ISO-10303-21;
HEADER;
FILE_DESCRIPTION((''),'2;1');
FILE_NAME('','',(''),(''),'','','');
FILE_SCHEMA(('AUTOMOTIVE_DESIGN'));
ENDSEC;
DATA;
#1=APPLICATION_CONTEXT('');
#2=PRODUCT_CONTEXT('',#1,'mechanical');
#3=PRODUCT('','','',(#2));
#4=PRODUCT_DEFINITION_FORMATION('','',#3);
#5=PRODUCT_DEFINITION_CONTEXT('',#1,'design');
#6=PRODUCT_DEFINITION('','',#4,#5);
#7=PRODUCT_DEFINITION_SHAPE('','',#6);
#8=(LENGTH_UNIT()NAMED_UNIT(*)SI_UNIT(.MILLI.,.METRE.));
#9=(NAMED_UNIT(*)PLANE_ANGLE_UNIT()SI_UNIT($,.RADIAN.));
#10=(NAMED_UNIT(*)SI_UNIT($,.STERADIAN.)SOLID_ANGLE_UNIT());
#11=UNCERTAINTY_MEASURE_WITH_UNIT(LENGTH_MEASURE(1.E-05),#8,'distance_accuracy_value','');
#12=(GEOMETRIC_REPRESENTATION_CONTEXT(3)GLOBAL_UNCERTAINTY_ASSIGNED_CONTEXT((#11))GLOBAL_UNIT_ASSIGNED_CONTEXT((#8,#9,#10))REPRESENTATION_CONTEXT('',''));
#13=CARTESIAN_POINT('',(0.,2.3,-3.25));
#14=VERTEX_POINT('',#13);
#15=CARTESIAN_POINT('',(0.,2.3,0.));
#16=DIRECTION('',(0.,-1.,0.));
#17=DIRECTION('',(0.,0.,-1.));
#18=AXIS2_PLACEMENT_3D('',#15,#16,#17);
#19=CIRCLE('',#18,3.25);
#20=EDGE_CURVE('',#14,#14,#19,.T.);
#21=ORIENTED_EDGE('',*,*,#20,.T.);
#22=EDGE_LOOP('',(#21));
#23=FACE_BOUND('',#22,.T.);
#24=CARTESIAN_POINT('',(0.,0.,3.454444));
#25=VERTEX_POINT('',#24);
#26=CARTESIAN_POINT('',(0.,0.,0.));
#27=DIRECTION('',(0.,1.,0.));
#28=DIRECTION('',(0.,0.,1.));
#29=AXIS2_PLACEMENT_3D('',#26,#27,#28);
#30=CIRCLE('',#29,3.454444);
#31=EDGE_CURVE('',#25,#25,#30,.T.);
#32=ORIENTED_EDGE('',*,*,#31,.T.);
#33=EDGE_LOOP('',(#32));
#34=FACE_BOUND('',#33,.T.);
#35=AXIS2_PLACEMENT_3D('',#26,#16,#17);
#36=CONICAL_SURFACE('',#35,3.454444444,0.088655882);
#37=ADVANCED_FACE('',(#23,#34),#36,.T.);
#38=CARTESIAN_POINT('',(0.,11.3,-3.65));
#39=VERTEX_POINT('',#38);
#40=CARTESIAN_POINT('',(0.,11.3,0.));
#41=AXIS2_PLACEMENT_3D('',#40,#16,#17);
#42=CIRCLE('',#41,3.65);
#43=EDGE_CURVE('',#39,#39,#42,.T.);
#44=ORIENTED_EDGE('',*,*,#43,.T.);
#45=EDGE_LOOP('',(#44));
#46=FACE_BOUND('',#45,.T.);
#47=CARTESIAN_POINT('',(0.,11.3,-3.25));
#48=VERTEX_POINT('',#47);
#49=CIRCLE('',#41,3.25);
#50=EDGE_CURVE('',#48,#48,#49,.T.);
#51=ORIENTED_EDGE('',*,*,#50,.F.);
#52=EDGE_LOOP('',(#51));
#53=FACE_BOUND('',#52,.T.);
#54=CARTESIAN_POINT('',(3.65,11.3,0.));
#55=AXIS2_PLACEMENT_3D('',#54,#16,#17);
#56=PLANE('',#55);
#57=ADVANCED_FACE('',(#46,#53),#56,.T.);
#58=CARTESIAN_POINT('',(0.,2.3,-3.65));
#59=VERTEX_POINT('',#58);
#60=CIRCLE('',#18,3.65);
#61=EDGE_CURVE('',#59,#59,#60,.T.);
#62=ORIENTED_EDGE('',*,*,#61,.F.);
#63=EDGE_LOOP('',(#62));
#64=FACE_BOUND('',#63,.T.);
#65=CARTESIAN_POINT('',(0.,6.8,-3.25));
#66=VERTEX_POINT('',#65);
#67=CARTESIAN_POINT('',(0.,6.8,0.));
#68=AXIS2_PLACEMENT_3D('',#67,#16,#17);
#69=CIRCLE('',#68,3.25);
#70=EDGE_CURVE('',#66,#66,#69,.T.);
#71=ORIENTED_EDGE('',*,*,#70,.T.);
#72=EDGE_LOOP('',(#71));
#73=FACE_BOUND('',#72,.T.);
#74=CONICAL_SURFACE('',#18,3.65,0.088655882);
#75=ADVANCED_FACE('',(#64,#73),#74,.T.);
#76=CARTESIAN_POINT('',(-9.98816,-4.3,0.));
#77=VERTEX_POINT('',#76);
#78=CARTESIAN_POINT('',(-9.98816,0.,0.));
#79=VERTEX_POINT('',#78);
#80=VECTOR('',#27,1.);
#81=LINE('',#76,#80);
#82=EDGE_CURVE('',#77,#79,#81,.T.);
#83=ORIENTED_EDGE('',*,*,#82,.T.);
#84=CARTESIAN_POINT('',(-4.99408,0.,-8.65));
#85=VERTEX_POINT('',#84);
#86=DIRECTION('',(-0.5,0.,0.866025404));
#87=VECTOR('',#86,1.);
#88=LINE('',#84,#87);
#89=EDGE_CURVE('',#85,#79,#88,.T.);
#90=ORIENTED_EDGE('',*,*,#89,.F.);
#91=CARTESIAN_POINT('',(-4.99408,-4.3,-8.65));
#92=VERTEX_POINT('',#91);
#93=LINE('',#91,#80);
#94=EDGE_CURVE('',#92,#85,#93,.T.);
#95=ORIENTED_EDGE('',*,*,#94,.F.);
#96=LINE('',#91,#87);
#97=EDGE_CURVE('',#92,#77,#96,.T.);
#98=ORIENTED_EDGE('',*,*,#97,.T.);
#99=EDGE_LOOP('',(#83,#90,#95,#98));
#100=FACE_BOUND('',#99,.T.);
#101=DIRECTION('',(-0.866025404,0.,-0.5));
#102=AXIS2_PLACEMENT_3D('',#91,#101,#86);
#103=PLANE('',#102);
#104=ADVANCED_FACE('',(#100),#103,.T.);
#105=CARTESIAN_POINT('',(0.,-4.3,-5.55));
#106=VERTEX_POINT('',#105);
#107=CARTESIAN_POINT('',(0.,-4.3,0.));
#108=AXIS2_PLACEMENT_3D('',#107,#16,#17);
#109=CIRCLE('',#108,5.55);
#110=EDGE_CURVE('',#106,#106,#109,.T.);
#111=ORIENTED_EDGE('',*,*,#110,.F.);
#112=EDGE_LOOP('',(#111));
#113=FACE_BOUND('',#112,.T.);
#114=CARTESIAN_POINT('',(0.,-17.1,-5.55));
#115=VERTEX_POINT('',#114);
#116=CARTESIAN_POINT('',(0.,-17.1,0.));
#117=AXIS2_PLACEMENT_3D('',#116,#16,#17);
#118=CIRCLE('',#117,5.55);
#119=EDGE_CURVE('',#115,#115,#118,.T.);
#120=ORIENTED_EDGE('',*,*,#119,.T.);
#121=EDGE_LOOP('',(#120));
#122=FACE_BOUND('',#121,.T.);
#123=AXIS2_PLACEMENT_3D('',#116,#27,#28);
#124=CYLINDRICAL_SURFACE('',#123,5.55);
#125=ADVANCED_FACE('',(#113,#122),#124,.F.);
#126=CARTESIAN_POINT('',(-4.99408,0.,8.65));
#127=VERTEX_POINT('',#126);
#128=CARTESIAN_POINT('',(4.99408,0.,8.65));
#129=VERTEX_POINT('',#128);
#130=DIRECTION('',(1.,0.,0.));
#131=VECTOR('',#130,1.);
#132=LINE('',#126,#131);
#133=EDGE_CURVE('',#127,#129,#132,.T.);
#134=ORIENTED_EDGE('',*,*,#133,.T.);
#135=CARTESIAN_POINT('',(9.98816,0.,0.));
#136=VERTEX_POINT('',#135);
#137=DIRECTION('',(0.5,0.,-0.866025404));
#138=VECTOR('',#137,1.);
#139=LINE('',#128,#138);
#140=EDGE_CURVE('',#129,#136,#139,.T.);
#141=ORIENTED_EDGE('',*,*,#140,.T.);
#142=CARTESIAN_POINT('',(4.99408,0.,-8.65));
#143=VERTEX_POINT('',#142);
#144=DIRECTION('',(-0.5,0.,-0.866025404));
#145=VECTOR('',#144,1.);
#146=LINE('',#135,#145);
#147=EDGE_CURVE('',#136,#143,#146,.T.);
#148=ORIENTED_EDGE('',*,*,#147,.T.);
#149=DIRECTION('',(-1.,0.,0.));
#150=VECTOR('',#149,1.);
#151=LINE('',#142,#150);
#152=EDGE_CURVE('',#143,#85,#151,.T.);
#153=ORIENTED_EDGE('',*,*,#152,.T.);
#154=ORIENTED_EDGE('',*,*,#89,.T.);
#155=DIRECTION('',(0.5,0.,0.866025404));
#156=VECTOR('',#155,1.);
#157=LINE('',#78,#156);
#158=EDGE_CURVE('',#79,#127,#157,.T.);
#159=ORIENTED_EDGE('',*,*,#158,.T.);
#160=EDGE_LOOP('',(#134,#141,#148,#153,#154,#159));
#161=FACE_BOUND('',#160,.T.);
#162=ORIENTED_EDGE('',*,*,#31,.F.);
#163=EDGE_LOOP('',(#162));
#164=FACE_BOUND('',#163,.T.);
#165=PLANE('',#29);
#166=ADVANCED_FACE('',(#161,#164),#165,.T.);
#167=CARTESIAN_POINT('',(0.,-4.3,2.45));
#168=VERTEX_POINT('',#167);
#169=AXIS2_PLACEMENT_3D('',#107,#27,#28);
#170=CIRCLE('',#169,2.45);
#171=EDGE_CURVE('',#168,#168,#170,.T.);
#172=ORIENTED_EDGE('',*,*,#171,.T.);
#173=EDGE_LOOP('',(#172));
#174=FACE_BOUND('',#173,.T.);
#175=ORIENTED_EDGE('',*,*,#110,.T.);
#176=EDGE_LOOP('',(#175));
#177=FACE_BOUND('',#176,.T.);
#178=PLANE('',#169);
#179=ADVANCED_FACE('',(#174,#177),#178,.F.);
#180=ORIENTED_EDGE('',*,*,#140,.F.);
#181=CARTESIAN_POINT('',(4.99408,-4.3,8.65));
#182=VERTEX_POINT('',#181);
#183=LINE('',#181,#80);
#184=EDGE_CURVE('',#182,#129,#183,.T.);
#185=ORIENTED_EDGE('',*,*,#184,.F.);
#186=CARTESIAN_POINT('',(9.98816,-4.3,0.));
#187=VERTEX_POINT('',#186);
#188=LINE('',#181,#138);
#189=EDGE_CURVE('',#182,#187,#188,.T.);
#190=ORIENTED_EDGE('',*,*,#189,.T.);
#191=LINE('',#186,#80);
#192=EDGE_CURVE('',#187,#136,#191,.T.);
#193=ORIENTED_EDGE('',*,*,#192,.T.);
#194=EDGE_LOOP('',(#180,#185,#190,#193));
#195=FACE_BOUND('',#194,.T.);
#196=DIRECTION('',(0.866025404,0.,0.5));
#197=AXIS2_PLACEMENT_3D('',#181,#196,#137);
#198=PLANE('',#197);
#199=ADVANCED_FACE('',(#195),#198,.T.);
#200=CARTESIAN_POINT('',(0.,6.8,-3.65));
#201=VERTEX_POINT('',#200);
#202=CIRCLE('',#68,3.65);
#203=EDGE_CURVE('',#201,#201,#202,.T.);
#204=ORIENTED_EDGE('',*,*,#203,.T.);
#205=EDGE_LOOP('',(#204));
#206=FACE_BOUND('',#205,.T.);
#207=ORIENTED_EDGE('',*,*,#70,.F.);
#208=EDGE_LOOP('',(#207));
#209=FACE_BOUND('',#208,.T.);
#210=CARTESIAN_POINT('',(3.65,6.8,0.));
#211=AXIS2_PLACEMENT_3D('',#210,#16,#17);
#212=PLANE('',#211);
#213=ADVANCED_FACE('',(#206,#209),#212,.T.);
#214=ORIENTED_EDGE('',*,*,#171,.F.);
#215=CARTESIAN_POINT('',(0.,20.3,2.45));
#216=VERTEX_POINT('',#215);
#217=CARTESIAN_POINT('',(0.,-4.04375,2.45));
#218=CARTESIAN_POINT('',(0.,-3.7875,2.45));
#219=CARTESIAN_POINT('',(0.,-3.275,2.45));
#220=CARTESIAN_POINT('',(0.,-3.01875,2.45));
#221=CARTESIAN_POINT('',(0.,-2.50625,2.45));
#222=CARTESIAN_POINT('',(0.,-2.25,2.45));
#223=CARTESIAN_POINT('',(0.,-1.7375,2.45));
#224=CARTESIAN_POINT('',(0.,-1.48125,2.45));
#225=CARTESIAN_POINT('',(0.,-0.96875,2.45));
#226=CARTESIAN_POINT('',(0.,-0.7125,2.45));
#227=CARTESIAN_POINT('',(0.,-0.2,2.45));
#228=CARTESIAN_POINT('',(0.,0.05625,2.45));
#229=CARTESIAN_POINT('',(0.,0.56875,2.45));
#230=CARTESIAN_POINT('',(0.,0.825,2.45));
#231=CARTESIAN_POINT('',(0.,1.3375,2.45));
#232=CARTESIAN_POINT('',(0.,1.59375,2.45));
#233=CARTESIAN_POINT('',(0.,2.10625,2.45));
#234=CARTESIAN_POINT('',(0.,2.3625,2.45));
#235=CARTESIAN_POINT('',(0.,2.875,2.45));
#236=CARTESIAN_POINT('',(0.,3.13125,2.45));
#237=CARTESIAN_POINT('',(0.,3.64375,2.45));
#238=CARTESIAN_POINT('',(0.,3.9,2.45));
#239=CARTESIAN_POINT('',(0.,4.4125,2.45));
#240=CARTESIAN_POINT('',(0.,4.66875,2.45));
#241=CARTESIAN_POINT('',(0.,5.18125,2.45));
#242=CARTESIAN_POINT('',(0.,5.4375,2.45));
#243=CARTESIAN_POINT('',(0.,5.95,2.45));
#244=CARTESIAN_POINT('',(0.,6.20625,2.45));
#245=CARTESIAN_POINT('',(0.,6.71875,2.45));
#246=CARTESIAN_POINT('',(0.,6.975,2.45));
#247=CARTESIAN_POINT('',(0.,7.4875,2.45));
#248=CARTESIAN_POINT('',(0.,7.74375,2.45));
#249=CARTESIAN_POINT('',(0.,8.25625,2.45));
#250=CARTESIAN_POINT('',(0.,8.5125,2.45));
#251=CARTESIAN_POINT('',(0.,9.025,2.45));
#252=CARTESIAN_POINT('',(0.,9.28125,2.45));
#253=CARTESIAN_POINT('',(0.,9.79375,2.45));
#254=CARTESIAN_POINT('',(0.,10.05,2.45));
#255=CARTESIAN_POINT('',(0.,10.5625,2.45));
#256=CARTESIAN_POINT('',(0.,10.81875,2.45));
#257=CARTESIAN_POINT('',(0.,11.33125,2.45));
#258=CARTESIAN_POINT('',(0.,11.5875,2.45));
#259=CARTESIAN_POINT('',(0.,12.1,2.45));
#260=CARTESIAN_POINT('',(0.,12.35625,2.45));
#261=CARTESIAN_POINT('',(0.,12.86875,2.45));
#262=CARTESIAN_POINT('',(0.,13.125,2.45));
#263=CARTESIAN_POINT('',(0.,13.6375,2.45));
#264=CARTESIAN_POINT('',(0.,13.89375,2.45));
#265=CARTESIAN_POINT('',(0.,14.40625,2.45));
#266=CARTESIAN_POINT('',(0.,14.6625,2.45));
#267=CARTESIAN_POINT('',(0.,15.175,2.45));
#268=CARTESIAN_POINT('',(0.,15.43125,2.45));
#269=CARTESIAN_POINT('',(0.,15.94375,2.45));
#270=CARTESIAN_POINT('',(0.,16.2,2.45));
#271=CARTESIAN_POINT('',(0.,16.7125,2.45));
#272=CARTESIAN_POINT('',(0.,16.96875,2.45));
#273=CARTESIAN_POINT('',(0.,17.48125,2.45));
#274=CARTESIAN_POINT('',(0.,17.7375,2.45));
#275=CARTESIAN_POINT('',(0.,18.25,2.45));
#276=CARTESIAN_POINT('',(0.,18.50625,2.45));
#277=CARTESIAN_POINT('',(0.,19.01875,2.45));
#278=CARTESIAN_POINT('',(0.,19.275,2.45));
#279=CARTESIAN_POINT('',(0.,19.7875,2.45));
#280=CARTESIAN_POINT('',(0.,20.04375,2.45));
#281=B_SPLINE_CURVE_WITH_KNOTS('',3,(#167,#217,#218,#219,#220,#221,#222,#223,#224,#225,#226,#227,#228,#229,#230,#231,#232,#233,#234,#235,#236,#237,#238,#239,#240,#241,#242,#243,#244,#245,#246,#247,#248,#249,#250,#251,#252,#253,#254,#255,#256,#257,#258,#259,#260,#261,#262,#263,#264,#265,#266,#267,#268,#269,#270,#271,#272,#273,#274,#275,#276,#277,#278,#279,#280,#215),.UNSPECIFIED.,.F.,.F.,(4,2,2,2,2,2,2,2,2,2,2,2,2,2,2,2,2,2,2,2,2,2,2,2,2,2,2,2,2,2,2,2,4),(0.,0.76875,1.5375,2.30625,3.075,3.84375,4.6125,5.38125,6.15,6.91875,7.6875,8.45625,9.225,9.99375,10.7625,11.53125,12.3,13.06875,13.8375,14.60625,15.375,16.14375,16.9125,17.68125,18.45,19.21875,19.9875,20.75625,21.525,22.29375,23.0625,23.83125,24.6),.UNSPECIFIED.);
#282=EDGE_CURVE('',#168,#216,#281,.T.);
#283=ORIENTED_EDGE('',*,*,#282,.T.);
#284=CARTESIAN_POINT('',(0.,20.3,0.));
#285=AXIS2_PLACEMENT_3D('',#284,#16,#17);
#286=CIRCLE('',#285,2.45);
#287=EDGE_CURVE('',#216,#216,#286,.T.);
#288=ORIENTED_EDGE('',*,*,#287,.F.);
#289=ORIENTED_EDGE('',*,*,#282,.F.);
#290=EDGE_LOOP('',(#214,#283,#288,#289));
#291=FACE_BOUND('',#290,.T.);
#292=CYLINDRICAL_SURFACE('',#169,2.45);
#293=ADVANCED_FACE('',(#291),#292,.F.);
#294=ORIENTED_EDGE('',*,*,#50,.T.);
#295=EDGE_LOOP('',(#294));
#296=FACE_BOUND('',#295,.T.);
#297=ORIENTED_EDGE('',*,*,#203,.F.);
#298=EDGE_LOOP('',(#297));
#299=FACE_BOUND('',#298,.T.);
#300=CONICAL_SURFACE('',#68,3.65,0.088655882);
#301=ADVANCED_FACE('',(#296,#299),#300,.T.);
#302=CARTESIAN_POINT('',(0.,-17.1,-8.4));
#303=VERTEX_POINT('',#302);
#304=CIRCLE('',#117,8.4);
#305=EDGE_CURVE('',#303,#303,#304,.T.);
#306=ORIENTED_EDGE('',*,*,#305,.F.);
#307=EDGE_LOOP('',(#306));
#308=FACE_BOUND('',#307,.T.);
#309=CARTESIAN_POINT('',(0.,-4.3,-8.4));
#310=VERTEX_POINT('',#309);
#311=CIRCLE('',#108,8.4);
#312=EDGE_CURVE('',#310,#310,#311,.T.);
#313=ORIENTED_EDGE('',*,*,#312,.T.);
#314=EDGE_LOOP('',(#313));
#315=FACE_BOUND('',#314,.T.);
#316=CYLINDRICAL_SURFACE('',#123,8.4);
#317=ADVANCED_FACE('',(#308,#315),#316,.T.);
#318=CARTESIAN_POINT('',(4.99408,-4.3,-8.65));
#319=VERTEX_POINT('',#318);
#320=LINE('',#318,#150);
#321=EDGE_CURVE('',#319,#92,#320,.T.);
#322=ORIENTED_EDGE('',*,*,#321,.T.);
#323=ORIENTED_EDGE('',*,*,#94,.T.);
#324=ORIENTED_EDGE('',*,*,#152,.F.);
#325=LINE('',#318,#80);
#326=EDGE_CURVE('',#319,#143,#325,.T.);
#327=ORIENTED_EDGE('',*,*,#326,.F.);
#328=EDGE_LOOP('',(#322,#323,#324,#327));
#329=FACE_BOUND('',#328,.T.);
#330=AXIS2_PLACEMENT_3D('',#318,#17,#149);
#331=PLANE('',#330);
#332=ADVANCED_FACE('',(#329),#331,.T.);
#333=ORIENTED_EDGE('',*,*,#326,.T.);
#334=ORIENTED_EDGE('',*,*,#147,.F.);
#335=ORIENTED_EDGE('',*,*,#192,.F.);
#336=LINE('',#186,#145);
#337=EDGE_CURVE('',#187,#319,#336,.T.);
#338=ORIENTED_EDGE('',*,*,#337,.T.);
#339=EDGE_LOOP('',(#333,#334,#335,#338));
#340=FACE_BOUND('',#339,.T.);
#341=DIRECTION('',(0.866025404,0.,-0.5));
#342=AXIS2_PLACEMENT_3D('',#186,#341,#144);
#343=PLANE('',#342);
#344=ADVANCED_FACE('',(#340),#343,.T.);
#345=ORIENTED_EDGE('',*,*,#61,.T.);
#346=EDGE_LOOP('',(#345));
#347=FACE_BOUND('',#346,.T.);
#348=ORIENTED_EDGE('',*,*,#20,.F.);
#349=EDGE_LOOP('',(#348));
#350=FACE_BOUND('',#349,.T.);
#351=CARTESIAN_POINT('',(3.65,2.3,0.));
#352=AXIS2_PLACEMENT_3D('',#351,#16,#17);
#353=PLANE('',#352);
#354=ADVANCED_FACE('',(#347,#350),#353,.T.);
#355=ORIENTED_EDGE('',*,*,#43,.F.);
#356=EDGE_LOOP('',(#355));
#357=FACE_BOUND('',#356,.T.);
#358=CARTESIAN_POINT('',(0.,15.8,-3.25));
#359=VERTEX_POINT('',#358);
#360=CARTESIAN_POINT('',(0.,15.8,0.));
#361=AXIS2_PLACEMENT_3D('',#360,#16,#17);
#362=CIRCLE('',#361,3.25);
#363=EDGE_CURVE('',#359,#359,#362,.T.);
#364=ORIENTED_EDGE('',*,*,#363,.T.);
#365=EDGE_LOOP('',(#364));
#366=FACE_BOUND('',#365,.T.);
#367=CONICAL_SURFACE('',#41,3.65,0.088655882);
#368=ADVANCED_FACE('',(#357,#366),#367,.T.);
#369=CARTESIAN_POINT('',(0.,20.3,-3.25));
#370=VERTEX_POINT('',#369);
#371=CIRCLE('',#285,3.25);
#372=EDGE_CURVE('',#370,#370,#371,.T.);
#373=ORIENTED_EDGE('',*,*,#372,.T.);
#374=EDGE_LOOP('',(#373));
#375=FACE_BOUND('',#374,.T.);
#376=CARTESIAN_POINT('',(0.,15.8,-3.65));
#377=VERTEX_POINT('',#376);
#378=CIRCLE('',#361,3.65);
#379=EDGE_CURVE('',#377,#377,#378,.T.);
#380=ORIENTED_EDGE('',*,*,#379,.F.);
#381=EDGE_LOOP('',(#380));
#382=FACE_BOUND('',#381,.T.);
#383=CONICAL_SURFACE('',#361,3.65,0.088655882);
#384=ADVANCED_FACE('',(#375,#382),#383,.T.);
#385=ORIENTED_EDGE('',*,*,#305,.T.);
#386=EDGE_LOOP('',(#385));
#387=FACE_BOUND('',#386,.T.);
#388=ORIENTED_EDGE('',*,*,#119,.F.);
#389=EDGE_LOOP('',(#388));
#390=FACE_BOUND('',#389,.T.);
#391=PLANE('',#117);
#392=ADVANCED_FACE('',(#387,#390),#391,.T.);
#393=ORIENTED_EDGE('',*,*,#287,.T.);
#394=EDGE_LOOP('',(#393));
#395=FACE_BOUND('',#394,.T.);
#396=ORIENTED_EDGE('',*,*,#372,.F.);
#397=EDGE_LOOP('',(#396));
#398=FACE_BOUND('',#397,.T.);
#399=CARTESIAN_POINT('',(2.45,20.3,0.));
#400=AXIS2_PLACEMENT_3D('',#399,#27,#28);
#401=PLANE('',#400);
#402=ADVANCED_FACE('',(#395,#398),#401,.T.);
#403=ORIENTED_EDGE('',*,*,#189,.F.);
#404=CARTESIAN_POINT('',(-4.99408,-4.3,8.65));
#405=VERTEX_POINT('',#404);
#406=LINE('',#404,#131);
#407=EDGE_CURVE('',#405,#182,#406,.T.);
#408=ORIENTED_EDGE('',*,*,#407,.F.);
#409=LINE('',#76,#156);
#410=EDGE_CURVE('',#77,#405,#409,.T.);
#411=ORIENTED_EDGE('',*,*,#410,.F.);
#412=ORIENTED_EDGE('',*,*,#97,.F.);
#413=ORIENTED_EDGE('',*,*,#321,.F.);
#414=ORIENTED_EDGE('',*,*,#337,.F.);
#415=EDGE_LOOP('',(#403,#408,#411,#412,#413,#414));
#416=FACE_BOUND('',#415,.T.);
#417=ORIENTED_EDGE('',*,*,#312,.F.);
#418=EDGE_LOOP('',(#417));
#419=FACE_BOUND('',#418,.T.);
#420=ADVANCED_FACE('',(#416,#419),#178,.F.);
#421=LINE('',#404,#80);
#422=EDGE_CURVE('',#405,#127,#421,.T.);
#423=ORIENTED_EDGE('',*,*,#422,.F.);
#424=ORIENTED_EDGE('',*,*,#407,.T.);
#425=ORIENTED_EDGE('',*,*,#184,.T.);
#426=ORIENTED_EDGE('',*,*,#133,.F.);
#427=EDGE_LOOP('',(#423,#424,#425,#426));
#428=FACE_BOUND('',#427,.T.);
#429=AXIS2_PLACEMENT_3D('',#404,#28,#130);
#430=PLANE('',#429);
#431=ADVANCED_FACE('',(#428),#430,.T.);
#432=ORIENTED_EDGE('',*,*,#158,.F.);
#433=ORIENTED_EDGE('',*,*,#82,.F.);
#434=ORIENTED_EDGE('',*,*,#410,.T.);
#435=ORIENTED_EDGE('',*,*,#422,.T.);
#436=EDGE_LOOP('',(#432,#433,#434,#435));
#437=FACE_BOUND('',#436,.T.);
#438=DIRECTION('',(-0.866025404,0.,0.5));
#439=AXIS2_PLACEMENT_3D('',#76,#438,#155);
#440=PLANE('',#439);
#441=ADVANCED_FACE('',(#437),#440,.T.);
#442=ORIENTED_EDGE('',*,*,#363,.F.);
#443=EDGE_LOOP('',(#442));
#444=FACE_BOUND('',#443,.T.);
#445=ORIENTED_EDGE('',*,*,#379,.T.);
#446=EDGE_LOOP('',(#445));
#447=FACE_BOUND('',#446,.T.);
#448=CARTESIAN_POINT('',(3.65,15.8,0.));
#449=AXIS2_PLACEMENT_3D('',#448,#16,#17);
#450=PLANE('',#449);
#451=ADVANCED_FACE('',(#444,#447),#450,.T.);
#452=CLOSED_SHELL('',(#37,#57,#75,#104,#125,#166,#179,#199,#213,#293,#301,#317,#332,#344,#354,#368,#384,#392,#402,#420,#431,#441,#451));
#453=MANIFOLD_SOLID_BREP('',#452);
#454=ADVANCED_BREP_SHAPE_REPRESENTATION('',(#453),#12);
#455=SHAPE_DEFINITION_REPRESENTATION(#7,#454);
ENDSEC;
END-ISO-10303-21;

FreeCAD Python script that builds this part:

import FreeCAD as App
import Part
import Sketcher
Q = App.Units.Quantity


def add_polygon(sketch, points):
    """Adds a closed chain of lines whose ends are joined by coincident constraints."""
    first, n = sketch.GeometryCount, len(points)
    for a, b in zip(points, points[1:] + points[:1]):
        sketch.addGeometry(Part.LineSegment(App.Vector(*a, 0), App.Vector(*b, 0)), False)
    for i in range(n):
        sketch.addConstraint(Sketcher.Constraint("Coincident", first + i, 2, first + (i + 1) % n, 1))

doc = App.newDocument("Part")
body = doc.addObject("PartDesign::Body", "Body")

# Sketch on XZ plane
sketch1 = body.newObject("Sketcher::SketchObject", "Sketch")
sketch1.AttachmentSupport = (doc.getObject("XZ_Plane"), [""])
sketch1.MapMode = "FlatFace"
add_polygon(sketch1, [(9.98816, 0), (4.99408, -8.65), (-4.99408, -8.65), (-9.98816, 0), (-4.99408, 8.65), (4.99408, 8.65)])  # lines 0-5
sketch1.addGeometry(Part.Circle(App.Vector(0, 0, 0), App.Vector(0, 0, 1), 2.45), False)  # 6
sketch1.addConstraint([
    Sketcher.Constraint("Horizontal", 1),
    Sketcher.Constraint("Horizontal", 4),
    Sketcher.Constraint("Coincident", 6, 3, -1, 1),
    Sketcher.Constraint("Symmetric", 0, 2, 3, 2, -1, 1),
    Sketcher.Constraint("Symmetric", 2, 2, 5, 2, -1, 1),
    Sketcher.Constraint("PointOnObject", 2, 2, -1),
    Sketcher.Constraint("Parallel", 2, 5),
    Sketcher.Constraint("Vertical", 1, 2, 3, 2),
    Sketcher.Constraint("Diameter", 6, Q("4.9 mm")),
    Sketcher.Constraint("Angle", 0, Q("-120 deg")),
    Sketcher.Constraint("DistanceY", 1, 2, 3, 2, Q("17.3 mm")),
    Sketcher.Constraint("DistanceX", 1, 2, 1, 1, Q("9.98816 mm")),
])
pad1 = body.newObject("PartDesign::Pad", "Pad")
pad1.Profile = sketch1
pad1.Length = 4.3

# Sketch on XY plane
sketch2 = body.newObject("Sketcher::SketchObject", "Sketch001")
sketch2.AttachmentSupport = (doc.getObject("XY_Plane"), [""])
sketch2.MapMode = "FlatFace"
add_polygon(sketch2, [(2.45, 20.3), (2.45, 0), (3.454444, 0), (3.25, 2.3), (3.65, 2.3), (3.25, 6.8), (3.65, 6.8), (3.25, 11.3), (3.65, 11.3), (3.25, 15.8), (3.65, 15.8), (3.25, 20.3)])  # lines 0-11
sketch2.addConstraint([
    Sketcher.Constraint("Vertical", 0),
    Sketcher.Constraint("Horizontal", 1),
    Sketcher.Constraint("Horizontal", 3),
    Sketcher.Constraint("Horizontal", 5),
    Sketcher.Constraint("Horizontal", 7),
    Sketcher.Constraint("Horizontal", 9),
    Sketcher.Constraint("Horizontal", 11),
    Sketcher.Constraint("PointOnObject", 0, 2, -1),
    Sketcher.Constraint("Parallel", 2, 4),
    Sketcher.Constraint("Parallel", 4, 6),
    Sketcher.Constraint("Parallel", 6, 8),
    Sketcher.Constraint("Parallel", 8, 10),
    Sketcher.Constraint("Vertical", 2, 2, 4, 2),
    Sketcher.Constraint("Vertical", 3, 2, 5, 2),
    Sketcher.Constraint("Vertical", 4, 2, 6, 2),
    Sketcher.Constraint("Vertical", 5, 2, 7, 2),
    Sketcher.Constraint("Vertical", 6, 2, 8, 2),
    Sketcher.Constraint("Vertical", 7, 2, 9, 2),
    Sketcher.Constraint("Vertical", 8, 2, 10, 2),
    Sketcher.Constraint("DistanceX", 3, 1, 3, 2, Q("0.4 mm")),
    Sketcher.Constraint("DistanceX", 11, 2, 11, 1, Q("0.8 mm")),
    Sketcher.Constraint("DistanceY", 0, 2, 0, 1, Q("20.3 mm")),
    Sketcher.Constraint("DistanceY", 2, 2, 6, 2, Q("9 mm")),
    Sketcher.Constraint("DistanceX", -1, 1, 0, 2, Q("2.45 mm")),
])
revolution = body.newObject("PartDesign::Revolution", "Revolution")
revolution.Profile = sketch2
revolution.ReferenceAxis = (sketch2, ["V_Axis"])
revolution.Angle = 360

# Sketch on XZ plane
sketch3 = body.newObject("Sketcher::SketchObject", "Sketch002")
sketch3.AttachmentSupport = (doc.getObject("XZ_Plane"), [""])
sketch3.MapMode = "FlatFace"
sketch3.AttachmentOffset = App.Placement(App.Vector(0, 0, 4.3), App.Rotation())
sketch3.addGeometry([
    Part.Circle(App.Vector(0, 0, 0), App.Vector(0, 0, 1), 8.4),
    Part.Circle(App.Vector(0, 0, 0), App.Vector(0, 0, 1), 5.55),
], False)
sketch3.addConstraint([
    Sketcher.Constraint("Coincident", 0, 3, -1, 1),
    Sketcher.Constraint("Coincident", 1, 3, -1, 1),
    Sketcher.Constraint("Diameter", 0, Q("16.8 mm")),
    Sketcher.Constraint("Diameter", 1, Q("11.1 mm")),
])
pad2 = body.newObject("PartDesign::Pad", "Pad001")
pad2.Profile = sketch3
pad2.Length = 12.8

doc.recompute()
